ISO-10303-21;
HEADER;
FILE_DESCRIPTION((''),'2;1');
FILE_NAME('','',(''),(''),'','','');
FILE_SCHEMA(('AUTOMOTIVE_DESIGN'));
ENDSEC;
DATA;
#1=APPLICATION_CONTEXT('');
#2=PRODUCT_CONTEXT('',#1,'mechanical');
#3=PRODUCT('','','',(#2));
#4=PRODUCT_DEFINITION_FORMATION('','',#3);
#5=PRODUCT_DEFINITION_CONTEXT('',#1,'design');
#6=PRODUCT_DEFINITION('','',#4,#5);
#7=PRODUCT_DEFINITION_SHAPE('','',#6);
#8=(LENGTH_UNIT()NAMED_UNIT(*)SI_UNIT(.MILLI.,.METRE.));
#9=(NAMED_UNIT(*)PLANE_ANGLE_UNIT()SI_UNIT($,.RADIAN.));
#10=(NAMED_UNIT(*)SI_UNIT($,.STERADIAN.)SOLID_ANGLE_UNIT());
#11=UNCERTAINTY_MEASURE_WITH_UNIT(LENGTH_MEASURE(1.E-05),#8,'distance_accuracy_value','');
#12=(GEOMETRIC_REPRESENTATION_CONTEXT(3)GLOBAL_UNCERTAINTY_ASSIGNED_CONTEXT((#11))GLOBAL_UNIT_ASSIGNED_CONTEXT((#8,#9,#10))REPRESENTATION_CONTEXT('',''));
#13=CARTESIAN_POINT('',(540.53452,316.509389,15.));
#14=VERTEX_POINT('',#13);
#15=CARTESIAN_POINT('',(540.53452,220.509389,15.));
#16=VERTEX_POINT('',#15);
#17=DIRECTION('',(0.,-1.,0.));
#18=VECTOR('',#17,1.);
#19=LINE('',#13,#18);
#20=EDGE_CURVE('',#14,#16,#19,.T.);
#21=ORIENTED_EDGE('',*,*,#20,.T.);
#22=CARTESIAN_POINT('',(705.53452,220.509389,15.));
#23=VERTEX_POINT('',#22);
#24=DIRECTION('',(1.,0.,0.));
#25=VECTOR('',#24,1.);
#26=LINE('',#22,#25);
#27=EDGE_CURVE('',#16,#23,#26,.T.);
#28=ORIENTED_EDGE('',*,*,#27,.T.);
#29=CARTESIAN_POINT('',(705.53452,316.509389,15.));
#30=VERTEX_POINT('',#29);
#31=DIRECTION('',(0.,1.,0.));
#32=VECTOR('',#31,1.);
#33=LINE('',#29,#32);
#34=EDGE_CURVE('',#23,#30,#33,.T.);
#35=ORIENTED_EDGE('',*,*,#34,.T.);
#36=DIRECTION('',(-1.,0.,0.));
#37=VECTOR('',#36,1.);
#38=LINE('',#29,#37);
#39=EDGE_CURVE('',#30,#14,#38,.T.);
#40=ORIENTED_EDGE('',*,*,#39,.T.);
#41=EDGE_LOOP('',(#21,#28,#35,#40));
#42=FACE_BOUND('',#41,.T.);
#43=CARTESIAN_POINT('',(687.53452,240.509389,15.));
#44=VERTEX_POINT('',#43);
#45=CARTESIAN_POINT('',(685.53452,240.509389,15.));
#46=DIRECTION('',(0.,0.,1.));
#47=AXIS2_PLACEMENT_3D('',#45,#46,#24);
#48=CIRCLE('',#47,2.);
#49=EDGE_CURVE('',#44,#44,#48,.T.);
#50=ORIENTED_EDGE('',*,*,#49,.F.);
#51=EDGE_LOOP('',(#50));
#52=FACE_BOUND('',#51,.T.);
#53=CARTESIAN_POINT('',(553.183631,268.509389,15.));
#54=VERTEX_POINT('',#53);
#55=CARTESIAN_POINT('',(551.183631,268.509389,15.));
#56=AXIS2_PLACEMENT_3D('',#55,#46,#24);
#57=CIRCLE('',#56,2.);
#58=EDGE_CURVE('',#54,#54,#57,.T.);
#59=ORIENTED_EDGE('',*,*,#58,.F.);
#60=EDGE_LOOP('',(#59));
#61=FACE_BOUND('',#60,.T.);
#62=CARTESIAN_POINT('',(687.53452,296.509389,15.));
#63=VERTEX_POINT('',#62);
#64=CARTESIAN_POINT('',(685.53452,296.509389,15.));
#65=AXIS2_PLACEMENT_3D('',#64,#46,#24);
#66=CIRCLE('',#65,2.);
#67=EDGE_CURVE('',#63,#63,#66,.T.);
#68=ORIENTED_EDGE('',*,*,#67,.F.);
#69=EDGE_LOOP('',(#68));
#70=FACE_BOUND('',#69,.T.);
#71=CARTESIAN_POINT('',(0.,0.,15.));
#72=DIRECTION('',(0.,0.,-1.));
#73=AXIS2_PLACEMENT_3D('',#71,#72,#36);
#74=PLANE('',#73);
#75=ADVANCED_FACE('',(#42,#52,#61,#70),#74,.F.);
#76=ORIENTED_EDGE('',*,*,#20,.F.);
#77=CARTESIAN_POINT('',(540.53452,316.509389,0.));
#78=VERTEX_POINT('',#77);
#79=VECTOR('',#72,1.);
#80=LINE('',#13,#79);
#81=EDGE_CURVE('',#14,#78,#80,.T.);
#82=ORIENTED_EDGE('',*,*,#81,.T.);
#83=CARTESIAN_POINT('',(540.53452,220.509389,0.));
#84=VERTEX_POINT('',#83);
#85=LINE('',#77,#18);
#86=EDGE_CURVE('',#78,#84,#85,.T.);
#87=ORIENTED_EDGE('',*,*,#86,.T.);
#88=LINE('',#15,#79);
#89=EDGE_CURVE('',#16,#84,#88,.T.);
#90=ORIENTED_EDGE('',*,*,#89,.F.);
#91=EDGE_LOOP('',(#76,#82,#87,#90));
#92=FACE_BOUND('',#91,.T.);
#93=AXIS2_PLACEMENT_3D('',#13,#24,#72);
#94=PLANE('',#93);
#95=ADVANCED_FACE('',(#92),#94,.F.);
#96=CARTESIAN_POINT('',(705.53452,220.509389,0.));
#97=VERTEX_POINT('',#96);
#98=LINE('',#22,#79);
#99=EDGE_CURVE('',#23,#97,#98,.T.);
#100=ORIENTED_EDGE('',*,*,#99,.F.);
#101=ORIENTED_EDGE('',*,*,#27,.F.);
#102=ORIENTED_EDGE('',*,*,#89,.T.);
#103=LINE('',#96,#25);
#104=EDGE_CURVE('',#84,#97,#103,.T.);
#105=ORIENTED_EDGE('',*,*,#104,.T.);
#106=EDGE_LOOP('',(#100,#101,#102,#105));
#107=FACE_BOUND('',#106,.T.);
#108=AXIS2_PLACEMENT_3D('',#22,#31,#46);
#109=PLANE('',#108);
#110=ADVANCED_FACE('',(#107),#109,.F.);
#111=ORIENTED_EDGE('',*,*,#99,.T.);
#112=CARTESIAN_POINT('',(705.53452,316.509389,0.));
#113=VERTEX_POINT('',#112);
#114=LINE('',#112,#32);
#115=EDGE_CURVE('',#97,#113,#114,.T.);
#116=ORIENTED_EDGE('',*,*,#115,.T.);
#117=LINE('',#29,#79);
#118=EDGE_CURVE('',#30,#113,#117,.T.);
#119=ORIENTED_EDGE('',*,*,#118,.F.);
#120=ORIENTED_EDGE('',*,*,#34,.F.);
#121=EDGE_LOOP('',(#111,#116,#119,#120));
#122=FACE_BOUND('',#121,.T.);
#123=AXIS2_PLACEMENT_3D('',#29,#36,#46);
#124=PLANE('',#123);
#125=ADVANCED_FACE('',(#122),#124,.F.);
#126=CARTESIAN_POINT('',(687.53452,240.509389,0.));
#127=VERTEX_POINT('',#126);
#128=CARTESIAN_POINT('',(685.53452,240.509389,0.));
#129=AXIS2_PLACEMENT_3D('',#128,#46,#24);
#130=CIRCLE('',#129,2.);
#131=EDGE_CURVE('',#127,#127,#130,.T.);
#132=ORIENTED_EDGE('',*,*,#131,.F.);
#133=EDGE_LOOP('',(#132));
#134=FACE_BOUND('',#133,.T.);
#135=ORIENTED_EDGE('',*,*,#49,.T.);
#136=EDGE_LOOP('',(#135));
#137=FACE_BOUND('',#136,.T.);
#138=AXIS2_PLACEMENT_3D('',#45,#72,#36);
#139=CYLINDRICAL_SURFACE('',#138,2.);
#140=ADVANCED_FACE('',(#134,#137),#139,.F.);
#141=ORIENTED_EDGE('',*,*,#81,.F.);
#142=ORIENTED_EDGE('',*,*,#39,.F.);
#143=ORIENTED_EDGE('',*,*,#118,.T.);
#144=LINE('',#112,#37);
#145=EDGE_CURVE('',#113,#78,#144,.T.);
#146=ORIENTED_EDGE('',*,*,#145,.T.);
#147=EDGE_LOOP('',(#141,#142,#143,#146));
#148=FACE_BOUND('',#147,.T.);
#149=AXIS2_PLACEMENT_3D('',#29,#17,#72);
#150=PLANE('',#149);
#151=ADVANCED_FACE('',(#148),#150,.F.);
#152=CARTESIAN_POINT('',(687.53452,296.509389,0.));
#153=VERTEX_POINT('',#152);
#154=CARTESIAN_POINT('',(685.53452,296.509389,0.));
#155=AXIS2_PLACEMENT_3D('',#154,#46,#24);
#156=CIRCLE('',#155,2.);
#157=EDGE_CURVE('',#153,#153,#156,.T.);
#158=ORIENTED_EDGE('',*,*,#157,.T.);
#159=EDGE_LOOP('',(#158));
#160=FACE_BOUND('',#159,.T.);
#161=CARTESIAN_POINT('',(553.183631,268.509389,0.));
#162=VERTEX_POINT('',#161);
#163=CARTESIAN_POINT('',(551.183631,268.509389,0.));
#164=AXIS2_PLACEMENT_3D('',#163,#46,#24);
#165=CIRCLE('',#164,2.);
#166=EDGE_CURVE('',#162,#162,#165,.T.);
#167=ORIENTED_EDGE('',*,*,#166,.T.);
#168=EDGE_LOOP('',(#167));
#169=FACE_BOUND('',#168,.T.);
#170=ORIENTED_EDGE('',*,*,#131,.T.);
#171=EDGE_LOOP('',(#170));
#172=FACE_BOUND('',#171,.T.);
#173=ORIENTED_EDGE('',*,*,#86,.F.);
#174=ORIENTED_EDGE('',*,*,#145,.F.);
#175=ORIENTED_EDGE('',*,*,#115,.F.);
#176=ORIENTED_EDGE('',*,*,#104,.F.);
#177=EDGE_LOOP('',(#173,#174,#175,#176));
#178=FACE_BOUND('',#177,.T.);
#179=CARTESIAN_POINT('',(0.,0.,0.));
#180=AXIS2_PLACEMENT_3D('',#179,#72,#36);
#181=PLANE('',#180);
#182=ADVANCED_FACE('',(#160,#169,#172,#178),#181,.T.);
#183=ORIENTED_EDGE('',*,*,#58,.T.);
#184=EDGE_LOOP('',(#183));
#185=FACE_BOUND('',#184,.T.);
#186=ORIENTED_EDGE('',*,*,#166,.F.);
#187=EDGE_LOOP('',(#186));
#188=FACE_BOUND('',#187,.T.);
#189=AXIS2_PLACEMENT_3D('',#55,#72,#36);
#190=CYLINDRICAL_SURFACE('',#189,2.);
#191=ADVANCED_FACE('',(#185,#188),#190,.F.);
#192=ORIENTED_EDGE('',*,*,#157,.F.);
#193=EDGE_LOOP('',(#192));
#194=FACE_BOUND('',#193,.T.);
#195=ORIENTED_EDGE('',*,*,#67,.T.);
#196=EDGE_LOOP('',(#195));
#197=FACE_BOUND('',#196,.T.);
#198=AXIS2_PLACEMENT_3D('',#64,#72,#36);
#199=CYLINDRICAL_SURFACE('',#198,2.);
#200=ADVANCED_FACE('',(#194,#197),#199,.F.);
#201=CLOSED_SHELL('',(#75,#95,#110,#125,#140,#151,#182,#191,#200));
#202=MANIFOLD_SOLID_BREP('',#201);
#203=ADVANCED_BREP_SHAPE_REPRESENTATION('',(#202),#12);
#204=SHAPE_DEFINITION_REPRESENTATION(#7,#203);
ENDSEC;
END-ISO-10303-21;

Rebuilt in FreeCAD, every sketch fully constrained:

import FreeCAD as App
import Part
import Sketcher

V = App.Vector


def add_polygon(sketch, points):
    """Adds a closed chain of lines whose ends are joined by coincident constraints."""
    first, n = sketch.GeometryCount, len(points)
    for a, b in zip(points, points[1:] + points[:1]):
        sketch.addGeometry(Part.LineSegment(App.Vector(*a, 0), App.Vector(*b, 0)), False)
    for i in range(n):
        sketch.addConstraint(Sketcher.Constraint("Coincident", first + i, 2, first + (i + 1) % n, 1))

doc = App.newDocument("Part")
body = doc.addObject("PartDesign::Body", "Body")

# Sketch on XY plane
sketch1 = body.newObject("Sketcher::SketchObject", "Sketch")
sketch1.AttachmentSupport = (doc.getObject("XY_Plane"), [""])
sketch1.MapMode = "FlatFace"
add_polygon(sketch1, [(540.5, 316.5), (540.5, 220.5), (705.5, 220.5), (705.5, 316.5)])  # lines 0-3
sketch1.addGeometry(Part.Circle(V(685.5, 240.5, 0), V(0, 0, 1), 2), False)  # 4
sketch1.addGeometry(Part.Circle(V(551.2, 268.5, 0), V(0, 0, 1), 2), False)  # 5
sketch1.addGeometry(Part.Circle(V(685.5, 296.5, 0), V(0, 0, 1), 2), False)  # 6
sketch1.addConstraint(Sketcher.Constraint("Vertical", 0))
sketch1.addConstraint(Sketcher.Constraint("Horizontal", 1))
sketch1.addConstraint(Sketcher.Constraint("Vertical", 2))
sketch1.addConstraint(Sketcher.Constraint("Horizontal", 3))
sketch1.addConstraint(Sketcher.Constraint("Equal", 4, 5))
sketch1.addConstraint(Sketcher.Constraint("Equal", 5, 6))
sketch1.addConstraint(Sketcher.Constraint("Vertical", 4, 3, 6, 3))
sketch1.addConstraint(Sketcher.Constraint("Diameter", 4, 4.0))
sketch1.addConstraint(Sketcher.Constraint("DistanceX", 1, 1, 1, 2, 165.0))
sketch1.addConstraint(Sketcher.Constraint("DistanceY", 0, 2, 0, 1, 96.0))
sketch1.addConstraint(Sketcher.Constraint("DistanceY", 4, 3, 5, 3, 28.0))
sketch1.addConstraint(Sketcher.Constraint("DistanceY", 4, 3, 6, 3, 56.0))
sketch1.addConstraint(Sketcher.Constraint("DistanceY", 0, 2, 5, 3, 48.0))
sketch1.addConstraint(Sketcher.Constraint("DistanceX", 0, 2, 4, 3, 145.0))
sketch1.addConstraint(Sketcher.Constraint("DistanceX", -1, 1, 4, 3, 685.53452))
sketch1.addConstraint(Sketcher.Constraint("DistanceY", -1, 1, 4, 3, 240.509389))
sketch1.addConstraint(Sketcher.Constraint("DistanceX", -1, 1, 5, 3, 551.183631))
pad1 = body.newObject("PartDesign::Pad", "Pad")
pad1.Profile = sketch1
pad1.Length = 15

doc.recompute()
